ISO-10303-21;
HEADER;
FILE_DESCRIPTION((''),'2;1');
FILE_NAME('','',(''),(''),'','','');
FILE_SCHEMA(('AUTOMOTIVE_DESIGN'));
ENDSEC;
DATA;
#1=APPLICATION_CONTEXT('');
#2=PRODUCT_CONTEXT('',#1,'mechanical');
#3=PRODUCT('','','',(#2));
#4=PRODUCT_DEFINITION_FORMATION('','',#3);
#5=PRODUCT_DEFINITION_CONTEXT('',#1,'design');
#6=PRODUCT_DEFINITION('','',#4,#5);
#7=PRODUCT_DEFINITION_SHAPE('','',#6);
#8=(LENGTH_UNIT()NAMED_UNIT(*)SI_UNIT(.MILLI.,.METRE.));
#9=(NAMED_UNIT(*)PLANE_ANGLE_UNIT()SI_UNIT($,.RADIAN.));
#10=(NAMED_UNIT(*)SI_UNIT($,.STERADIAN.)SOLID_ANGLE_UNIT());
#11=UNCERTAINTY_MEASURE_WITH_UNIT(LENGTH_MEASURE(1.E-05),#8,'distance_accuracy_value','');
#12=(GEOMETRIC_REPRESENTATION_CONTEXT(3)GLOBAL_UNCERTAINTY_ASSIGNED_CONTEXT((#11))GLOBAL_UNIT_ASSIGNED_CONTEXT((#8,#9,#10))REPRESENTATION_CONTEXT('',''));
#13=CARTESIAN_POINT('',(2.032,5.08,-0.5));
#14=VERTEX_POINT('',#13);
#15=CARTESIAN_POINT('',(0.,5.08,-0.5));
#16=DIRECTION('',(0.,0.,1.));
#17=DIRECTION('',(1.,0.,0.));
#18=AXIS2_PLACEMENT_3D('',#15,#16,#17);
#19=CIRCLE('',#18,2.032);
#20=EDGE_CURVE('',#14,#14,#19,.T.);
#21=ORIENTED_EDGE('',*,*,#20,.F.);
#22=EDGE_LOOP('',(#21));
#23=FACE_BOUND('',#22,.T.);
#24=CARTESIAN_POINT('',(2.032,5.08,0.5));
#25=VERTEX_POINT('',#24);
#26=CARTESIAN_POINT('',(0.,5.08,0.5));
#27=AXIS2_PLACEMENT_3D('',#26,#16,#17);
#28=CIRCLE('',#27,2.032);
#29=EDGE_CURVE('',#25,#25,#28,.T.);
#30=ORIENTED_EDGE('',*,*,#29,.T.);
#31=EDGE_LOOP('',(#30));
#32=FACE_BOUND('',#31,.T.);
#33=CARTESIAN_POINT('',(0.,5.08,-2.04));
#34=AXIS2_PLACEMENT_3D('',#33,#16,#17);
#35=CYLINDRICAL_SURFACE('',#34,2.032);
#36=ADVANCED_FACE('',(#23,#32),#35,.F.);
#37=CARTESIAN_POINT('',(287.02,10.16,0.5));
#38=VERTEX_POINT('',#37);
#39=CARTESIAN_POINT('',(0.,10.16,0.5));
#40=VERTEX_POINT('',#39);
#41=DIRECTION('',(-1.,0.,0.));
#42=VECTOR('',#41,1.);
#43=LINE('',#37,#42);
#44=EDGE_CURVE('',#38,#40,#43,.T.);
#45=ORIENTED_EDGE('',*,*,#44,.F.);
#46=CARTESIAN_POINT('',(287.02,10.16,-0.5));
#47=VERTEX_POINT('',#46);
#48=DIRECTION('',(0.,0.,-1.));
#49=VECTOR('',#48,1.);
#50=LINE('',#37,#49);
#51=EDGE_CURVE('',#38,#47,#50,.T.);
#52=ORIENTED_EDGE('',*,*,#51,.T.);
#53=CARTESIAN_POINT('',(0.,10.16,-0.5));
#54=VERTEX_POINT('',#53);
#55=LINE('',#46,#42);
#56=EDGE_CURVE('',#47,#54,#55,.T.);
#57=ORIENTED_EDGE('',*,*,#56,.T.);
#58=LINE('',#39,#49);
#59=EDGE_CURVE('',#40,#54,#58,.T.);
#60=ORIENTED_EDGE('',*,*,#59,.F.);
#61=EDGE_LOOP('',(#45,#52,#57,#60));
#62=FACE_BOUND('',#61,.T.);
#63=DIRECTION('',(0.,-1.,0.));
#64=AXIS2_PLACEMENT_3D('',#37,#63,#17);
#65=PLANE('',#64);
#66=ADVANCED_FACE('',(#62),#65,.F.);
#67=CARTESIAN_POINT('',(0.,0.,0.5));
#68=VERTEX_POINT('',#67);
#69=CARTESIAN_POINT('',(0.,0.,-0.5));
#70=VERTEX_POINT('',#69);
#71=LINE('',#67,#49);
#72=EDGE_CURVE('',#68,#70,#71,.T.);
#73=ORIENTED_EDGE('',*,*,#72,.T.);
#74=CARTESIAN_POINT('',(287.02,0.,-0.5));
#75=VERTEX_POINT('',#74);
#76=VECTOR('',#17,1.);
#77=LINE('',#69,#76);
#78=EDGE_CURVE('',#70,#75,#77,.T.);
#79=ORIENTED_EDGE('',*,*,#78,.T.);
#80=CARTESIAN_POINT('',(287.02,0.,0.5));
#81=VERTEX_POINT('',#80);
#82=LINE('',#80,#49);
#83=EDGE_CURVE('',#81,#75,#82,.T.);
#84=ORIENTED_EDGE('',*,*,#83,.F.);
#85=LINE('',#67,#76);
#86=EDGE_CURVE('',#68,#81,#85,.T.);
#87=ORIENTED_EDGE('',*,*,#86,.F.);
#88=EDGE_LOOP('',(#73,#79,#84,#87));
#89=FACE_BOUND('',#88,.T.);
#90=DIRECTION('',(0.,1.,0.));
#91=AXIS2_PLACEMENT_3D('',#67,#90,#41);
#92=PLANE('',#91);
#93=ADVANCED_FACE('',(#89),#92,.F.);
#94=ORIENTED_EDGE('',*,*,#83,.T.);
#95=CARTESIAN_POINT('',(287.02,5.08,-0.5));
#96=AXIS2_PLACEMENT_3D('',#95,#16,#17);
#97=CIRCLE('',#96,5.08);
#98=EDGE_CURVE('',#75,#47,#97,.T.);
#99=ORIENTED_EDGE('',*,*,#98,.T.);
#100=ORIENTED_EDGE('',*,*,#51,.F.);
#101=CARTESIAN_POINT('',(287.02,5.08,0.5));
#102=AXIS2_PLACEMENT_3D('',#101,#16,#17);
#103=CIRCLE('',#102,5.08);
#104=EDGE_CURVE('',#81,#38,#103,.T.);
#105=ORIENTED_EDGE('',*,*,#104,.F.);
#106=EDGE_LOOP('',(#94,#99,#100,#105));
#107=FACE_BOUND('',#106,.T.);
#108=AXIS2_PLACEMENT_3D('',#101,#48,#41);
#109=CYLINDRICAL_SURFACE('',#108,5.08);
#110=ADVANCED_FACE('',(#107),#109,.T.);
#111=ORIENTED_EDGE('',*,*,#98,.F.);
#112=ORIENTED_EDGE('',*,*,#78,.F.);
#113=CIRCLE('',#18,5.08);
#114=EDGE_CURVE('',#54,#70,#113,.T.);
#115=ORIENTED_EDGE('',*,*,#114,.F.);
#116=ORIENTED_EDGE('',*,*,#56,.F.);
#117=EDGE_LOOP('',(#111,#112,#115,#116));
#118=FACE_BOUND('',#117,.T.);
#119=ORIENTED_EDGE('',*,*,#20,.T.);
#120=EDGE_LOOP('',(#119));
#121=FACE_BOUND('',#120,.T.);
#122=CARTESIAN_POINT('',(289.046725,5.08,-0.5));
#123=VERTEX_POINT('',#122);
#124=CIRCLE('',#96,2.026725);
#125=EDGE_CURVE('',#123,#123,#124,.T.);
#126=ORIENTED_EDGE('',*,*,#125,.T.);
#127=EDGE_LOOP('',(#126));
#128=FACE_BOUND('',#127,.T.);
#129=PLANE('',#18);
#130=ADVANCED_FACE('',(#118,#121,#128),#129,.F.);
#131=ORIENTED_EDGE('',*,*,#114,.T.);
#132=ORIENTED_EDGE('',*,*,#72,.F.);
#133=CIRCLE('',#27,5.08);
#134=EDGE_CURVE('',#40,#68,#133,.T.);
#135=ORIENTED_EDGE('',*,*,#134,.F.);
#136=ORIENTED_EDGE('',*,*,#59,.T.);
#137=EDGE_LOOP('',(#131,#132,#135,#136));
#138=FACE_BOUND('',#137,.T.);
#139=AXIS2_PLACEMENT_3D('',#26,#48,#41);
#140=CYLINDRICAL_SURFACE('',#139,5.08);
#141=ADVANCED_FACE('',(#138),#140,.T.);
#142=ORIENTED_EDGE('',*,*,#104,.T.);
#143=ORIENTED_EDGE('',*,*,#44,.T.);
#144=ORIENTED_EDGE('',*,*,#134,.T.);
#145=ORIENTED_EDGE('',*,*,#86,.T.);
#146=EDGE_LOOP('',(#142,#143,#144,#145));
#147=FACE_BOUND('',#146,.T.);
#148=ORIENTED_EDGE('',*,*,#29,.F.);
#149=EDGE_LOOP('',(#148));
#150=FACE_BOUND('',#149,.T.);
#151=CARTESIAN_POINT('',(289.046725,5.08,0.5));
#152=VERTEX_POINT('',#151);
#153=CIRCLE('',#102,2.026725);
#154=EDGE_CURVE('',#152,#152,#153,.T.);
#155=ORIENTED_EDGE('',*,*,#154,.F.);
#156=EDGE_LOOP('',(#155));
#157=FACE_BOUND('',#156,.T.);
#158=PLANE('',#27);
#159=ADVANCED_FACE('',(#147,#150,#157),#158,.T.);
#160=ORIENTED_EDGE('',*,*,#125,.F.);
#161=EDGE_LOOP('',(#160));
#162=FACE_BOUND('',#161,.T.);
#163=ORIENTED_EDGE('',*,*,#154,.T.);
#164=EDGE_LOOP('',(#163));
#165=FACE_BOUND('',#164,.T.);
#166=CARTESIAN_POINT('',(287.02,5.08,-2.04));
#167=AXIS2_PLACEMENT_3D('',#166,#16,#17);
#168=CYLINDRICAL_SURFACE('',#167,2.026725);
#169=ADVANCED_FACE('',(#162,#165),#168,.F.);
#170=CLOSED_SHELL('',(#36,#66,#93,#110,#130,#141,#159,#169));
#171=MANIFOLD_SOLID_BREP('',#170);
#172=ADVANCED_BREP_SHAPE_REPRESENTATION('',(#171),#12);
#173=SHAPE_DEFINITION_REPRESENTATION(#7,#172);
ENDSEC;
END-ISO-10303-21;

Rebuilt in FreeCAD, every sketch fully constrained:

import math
import FreeCAD as App
import Part
import Sketcher
Q = App.Units.Quantity

doc = App.newDocument("Part")
body = doc.addObject("PartDesign::Body", "Body")

sketch1 = doc.addObject("Sketcher::SketchObject", "Sketch")
body.addObject(sketch1)
sketch1.AttachmentSupport = (doc.XY_Plane, [""])
sketch1.MapMode = "FlatFace"
sketch1.addGeometry([
    Part.LineSegment(App.Vector(0, 0, 0), App.Vector(287, 0, 0)),
    Part.ArcOfCircle(Part.Circle(App.Vector(287, 5, 0), App.Vector(0, 0, 1), 5), math.radians(-90), math.radians(90)),
    Part.LineSegment(App.Vector(287, 10, 0), App.Vector(0, 10, 0)),
    Part.ArcOfCircle(Part.Circle(App.Vector(0, 5, 0), App.Vector(0, 0, 1), 5), math.radians(90), math.radians(270)),
], False)
sketch1.addConstraint([
    Sketcher.Constraint("Tangent", 0, 2, 1, 1),
    Sketcher.Constraint("Tangent", 1, 2, 2, 1),
    Sketcher.Constraint("Tangent", 2, 2, 3, 1),
    Sketcher.Constraint("Tangent", 3, 2, 0, 1),
    Sketcher.Constraint("Horizontal", 0),
    Sketcher.Constraint("Horizontal", 2),
    Sketcher.Constraint("Coincident", 3, 2, -1, 1),
    Sketcher.Constraint("Radius", 1, Q("0.2 in")),
    Sketcher.Constraint("DistanceX", 0, 1, 0, 2, Q("11.3 in")),
])
pad1 = doc.addObject("PartDesign::Pad", "Pad")
body.addObject(pad1)
pad1.Profile = sketch1
pad1.Length = 1
pad1.Midplane = True

sketch2 = doc.addObject("Sketcher::SketchObject", "Sketch001")
body.addObject(sketch2)
sketch2.AttachmentSupport = (doc.XY_Plane, [""])
sketch2.MapMode = "FlatFace"
sketch2.AttachmentOffset = App.Placement(App.Vector(0, 0, 0.5), App.Rotation())
sketch2.addGeometry([
    Part.Circle(App.Vector(0, 5.1, 0), App.Vector(0, 0, 1), 2),
    Part.Circle(App.Vector(287, 5.1, 0), App.Vector(0, 0, 1), 2),
], False)
sketch2.addConstraint([
    Sketcher.Constraint("PointOnObject", 0, 3, -2),
    Sketcher.Constraint("Horizontal", 0, 3, 1, 3),
    Sketcher.Constraint("Diameter", 0, Q("0.16 in")),
    Sketcher.Constraint("DistanceY", -1, 1, 0, 3, Q("0.2 in")),
    Sketcher.Constraint("DistanceX", -1, 1, 1, 3, Q("11.3 in")),
    Sketcher.Constraint("Diameter", 1, 4.05345),
])
pocket1 = doc.addObject("PartDesign::Pocket", "Pocket")
body.addObject(pocket1)
pocket1.Profile = sketch2
pocket1.Length = Q("0.1 in")

doc.recompute()
